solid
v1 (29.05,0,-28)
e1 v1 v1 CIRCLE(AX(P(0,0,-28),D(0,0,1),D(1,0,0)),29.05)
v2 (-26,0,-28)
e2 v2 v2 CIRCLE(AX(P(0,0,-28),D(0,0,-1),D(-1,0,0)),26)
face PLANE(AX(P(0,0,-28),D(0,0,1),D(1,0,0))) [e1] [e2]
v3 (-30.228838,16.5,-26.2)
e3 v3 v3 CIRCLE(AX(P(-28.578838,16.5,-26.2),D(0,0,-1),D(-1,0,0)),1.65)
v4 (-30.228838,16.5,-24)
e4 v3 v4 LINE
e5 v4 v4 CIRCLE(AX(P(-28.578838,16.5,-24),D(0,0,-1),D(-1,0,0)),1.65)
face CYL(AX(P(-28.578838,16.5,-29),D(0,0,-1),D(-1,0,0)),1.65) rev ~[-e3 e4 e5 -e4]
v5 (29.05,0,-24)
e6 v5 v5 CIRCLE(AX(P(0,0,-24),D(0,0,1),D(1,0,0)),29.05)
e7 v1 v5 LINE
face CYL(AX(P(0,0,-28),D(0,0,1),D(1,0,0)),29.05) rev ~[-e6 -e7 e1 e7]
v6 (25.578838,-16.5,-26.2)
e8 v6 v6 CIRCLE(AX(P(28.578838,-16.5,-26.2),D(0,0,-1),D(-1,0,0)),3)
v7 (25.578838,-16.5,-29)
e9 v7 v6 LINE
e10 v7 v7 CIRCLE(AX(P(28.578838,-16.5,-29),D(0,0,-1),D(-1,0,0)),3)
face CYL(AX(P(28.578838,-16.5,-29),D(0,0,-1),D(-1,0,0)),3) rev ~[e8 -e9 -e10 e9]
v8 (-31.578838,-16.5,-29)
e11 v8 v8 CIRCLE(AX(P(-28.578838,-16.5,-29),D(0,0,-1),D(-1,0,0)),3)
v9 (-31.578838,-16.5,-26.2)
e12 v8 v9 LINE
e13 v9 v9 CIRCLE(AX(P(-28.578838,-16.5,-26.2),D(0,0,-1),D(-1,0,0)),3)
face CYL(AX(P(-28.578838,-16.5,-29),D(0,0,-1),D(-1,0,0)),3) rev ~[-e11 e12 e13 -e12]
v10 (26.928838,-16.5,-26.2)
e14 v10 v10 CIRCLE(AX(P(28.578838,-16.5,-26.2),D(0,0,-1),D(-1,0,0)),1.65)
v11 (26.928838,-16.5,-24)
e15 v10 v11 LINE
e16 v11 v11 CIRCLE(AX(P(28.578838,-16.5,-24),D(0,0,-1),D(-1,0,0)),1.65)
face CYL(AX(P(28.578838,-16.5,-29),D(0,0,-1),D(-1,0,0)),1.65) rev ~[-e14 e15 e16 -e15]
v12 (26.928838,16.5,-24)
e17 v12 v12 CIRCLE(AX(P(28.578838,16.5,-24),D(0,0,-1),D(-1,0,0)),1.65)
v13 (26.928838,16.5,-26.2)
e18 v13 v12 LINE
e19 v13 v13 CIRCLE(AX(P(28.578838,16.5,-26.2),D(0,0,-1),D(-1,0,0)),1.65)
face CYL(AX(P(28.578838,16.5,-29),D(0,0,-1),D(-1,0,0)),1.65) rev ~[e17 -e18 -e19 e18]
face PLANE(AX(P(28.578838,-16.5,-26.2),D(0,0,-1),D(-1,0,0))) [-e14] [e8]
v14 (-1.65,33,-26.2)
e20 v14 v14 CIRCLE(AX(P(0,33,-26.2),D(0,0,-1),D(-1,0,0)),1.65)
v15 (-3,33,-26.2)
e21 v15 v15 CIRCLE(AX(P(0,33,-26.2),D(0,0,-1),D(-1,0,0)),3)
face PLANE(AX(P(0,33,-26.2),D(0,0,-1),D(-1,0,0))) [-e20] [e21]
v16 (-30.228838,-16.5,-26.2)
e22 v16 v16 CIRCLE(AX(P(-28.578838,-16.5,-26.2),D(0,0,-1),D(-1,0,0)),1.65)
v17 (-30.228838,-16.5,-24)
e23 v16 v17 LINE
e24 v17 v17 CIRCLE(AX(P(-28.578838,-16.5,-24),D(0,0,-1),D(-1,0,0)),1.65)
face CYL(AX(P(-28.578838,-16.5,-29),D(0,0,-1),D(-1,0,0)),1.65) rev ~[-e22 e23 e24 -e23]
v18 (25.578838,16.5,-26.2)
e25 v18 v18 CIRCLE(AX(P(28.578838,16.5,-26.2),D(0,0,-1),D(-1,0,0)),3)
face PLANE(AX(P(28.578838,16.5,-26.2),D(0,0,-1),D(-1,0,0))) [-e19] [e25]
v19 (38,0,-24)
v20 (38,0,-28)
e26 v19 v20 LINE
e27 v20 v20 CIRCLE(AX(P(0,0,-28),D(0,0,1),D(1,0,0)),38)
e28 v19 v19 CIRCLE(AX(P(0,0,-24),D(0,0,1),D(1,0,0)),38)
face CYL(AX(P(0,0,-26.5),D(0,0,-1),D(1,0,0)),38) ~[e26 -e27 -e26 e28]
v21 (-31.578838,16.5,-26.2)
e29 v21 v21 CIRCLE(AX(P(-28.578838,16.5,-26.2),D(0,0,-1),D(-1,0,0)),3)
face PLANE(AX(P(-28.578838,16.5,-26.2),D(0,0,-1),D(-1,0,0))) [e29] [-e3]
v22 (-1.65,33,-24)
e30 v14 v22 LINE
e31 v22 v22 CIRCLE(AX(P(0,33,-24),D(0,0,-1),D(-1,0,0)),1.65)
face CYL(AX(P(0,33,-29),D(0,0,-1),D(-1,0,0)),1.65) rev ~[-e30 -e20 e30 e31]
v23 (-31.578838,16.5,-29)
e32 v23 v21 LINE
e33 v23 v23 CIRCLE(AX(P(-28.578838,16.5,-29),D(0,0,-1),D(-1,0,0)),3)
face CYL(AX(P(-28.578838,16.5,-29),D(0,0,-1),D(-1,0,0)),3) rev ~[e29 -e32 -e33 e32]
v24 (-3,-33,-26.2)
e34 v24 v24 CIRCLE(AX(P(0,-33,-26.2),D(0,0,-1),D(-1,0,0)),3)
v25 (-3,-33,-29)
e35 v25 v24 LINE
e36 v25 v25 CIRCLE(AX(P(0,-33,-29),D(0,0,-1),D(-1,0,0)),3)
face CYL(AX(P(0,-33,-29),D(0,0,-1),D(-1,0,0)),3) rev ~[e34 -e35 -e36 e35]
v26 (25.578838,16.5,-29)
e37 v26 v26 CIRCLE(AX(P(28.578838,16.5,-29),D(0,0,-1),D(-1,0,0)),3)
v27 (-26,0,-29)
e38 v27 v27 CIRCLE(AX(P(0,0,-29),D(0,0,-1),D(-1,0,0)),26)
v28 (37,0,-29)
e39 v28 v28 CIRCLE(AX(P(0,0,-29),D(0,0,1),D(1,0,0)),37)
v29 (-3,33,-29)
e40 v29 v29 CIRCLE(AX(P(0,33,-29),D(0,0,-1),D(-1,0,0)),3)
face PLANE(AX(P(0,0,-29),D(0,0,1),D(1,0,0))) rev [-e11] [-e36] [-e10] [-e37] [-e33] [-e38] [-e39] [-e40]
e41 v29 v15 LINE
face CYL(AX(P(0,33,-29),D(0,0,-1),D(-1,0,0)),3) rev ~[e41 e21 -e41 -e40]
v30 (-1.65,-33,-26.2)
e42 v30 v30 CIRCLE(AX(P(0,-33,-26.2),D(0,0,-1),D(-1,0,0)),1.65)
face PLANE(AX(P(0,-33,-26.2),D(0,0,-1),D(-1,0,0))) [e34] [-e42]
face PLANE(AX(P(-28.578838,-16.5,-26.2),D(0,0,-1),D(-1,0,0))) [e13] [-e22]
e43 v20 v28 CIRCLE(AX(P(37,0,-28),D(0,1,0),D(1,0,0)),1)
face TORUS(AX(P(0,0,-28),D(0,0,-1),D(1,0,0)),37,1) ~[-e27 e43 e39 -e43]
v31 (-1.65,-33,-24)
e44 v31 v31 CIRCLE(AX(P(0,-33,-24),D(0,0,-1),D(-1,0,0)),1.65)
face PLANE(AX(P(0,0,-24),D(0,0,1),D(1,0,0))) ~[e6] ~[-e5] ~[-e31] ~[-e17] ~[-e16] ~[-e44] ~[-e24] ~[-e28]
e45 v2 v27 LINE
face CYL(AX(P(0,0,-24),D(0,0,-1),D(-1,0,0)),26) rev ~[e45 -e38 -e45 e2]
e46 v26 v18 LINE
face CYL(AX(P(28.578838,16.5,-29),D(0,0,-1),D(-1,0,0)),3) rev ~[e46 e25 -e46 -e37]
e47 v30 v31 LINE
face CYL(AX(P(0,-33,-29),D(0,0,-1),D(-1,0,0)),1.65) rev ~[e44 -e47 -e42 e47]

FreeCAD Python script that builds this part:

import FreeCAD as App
import Part
import Sketcher

V = App.Vector


def edges_at(feature, points):
    """Names of the edges that pass closest to the given points."""
    edges = feature.Shape.Edges
    near = lambda p: min(range(len(edges)), key=lambda i: edges[i].distToShape(Part.Vertex(*p))[0])
    return sorted({f"Edge{near(p) + 1}" for p in points})


def add_polygon(sketch, points):
    """Adds a closed chain of lines whose ends are joined by coincident constraints."""
    first, n = sketch.GeometryCount, len(points)
    for a, b in zip(points, points[1:] + points[:1]):
        sketch.addGeometry(Part.LineSegment(App.Vector(*a, 0), App.Vector(*b, 0)), False)
    for i in range(n):
        sketch.addConstraint(Sketcher.Constraint("Coincident", first + i, 2, first + (i + 1) % n, 1))

doc = App.newDocument("Part")
body = doc.addObject("PartDesign::Body", "Body")

# Sketch on XZ plane
sketch1 = doc.addObject("Sketcher::SketchObject", "Sketch")
body.addObject(sketch1)
sketch1.AttachmentSupport = (doc.XZ_Plane, [""])
sketch1.MapMode = "FlatFace"
add_polygon(sketch1, [(0, -29), (0, -24), (38, -24), (38, -29)])  # lines 0-3
sketch1.addConstraint([
    Sketcher.Constraint("Vertical", 0),
    Sketcher.Constraint("Horizontal", 1),
    Sketcher.Constraint("Vertical", 2),
    Sketcher.Constraint("Horizontal", 3),
    Sketcher.Constraint("PointOnObject", 0, 2, -2),
    Sketcher.Constraint("DistanceX", 1, 1, 1, 2, 38.0),
    Sketcher.Constraint("DistanceY", 0, 1, 0, 2, 5.0),
    Sketcher.Constraint("DistanceY", 0, 2, -1, 1, 24.0),
])
revolution = doc.addObject("PartDesign::Revolution", "Revolution")
body.addObject(revolution)
revolution.Profile = sketch1
revolution.ReferenceAxis = (sketch1, ["V_Axis"])
revolution.Angle = 360

# Sketch on XY plane
sketch2 = doc.addObject("Sketcher::SketchObject", "Sketch001")
body.addObject(sketch2)
sketch2.AttachmentSupport = (doc.XY_Plane, [""])
sketch2.MapMode = "FlatFace"
sketch2.AttachmentOffset = App.Placement(V(0, 0, -24), App.Rotation())
sketch2.addGeometry(Part.Circle(V(0, 0, 0), V(0, 0, 1), 26), False)
sketch2.addConstraint([
    Sketcher.Constraint("Coincident", 0, 3, -1, 1),
    Sketcher.Constraint("Diameter", 0, 52.0),
])
doc.recompute()
hole = doc.addObject("PartDesign::Hole", "Hole")
body.addObject(hole)
hole.Profile = sketch2
hole.ThreadType = "None"
hole.Diameter = 52
hole.DepthType = "Dimension"
hole.Depth = 5
hole.DrillPoint = "Flat"
hole.HoleCutType = "Counterbore"
hole.HoleCutDiameter = 58.1
hole.HoleCutDepth = 4

# Sketch on XY plane
sketch3 = doc.addObject("Sketcher::SketchObject", "Sketch002")
body.addObject(sketch3)
sketch3.AttachmentSupport = (doc.XY_Plane, [""])
sketch3.MapMode = "FlatFace"
sketch3.AttachmentOffset = App.Placement(V(0, 0, -29), App.Rotation())
sketch3.addGeometry([
    Part.Circle(V(0, -33, 0), V(0, 0, 1), 1.65),  # 0
    Part.Circle(V(28.578838, -16.5, 0), V(0, 0, 1), 1.65),  # 1
    Part.Circle(V(28.578838, 16.5, 0), V(0, 0, 1), 1.65),  # 2
    Part.Circle(V(0, 33, 0), V(0, 0, 1), 1.65),  # 3
    Part.Circle(V(-28.578838, 16.5, 0), V(0, 0, 1), 1.65),  # 4
    Part.Circle(V(-28.578838, -16.5, 0), V(0, 0, 1), 1.65),  # 5
], False)
sketch3.addConstraint([
    Sketcher.Constraint("Equal", 0, 1),
    Sketcher.Constraint("Equal", 1, 2),
    Sketcher.Constraint("Equal", 2, 3),
    Sketcher.Constraint("Equal", 3, 4),
    Sketcher.Constraint("Equal", 4, 5),
    Sketcher.Constraint("Symmetric", 0, 3, 3, 3, -1, 1),
    Sketcher.Constraint("Symmetric", 1, 3, 4, 3, -1, 1),
    Sketcher.Constraint("Symmetric", 2, 3, 5, 3, -1, 1),
    Sketcher.Constraint("Symmetric", 2, 3, 4, 3, -2),
    Sketcher.Constraint("PointOnObject", 0, 3, -2),
    Sketcher.Constraint("Diameter", 0, 3.3),
    Sketcher.Constraint("DistanceY", 0, 3, -1, 1, 33.0),
    Sketcher.Constraint("DistanceY", 1, 3, 2, 3, 33.0),
    Sketcher.Constraint("DistanceX", -1, 1, 1, 3, 28.578838),
])
pocket1 = doc.addObject("PartDesign::Pocket", "Pocket")
body.addObject(pocket1)
pocket1.Profile = sketch3
pocket1.Type = "ThroughAll"
pocket1.Reversed = True

# Sketch on XY plane
sketch4 = doc.addObject("Sketcher::SketchObject", "Sketch003")
body.addObject(sketch4)
sketch4.AttachmentSupport = (doc.XY_Plane, [""])
sketch4.MapMode = "FlatFace"
sketch4.AttachmentOffset = App.Placement(V(0, 0, -29), App.Rotation())
sketch4.addGeometry([
    Part.Circle(V(0, -33, 0), V(0, 0, 1), 3),  # 0
    Part.Circle(V(28.578838, -16.5, 0), V(0, 0, 1), 3),  # 1
    Part.Circle(V(28.578838, 16.5, 0), V(0, 0, 1), 3),  # 2
    Part.Circle(V(0, 33, 0), V(0, 0, 1), 3),  # 3
    Part.Circle(V(-28.578838, 16.5, 0), V(0, 0, 1), 3),  # 4
    Part.Circle(V(-28.578838, -16.5, 0), V(0, 0, 1), 3),  # 5
], False)
sketch4.addConstraint([
    Sketcher.Constraint("Equal", 0, 1),
    Sketcher.Constraint("Equal", 1, 2),
    Sketcher.Constraint("Equal", 2, 3),
    Sketcher.Constraint("Equal", 3, 4),
    Sketcher.Constraint("Equal", 4, 5),
    Sketcher.Constraint("Symmetric", 0, 3, 3, 3, -1, 1),
    Sketcher.Constraint("Symmetric", 1, 3, 4, 3, -1, 1),
    Sketcher.Constraint("Symmetric", 2, 3, 5, 3, -1, 1),
    Sketcher.Constraint("Symmetric", 2, 3, 4, 3, -2),
    Sketcher.Constraint("PointOnObject", 0, 3, -2),
    Sketcher.Constraint("Diameter", 0, 6.0),
    Sketcher.Constraint("DistanceY", 0, 3, -1, 1, 33.0),
    Sketcher.Constraint("DistanceY", 1, 3, 2, 3, 33.0),
    Sketcher.Constraint("DistanceX", -1, 1, 1, 3, 28.578838),
])
pocket2 = doc.addObject("PartDesign::Pocket", "Pocket001")
body.addObject(pocket2)
pocket2.Profile = sketch4
pocket2.Length = 2.8
pocket2.Reversed = True
doc.recompute()

fillet = doc.addObject("PartDesign::Fillet", "Fillet")
body.addObject(fillet)
fillet.Base = (pocket2, edges_at(pocket2, [(-38, 0, -29)]))
fillet.Radius = 1

doc.recompute()
